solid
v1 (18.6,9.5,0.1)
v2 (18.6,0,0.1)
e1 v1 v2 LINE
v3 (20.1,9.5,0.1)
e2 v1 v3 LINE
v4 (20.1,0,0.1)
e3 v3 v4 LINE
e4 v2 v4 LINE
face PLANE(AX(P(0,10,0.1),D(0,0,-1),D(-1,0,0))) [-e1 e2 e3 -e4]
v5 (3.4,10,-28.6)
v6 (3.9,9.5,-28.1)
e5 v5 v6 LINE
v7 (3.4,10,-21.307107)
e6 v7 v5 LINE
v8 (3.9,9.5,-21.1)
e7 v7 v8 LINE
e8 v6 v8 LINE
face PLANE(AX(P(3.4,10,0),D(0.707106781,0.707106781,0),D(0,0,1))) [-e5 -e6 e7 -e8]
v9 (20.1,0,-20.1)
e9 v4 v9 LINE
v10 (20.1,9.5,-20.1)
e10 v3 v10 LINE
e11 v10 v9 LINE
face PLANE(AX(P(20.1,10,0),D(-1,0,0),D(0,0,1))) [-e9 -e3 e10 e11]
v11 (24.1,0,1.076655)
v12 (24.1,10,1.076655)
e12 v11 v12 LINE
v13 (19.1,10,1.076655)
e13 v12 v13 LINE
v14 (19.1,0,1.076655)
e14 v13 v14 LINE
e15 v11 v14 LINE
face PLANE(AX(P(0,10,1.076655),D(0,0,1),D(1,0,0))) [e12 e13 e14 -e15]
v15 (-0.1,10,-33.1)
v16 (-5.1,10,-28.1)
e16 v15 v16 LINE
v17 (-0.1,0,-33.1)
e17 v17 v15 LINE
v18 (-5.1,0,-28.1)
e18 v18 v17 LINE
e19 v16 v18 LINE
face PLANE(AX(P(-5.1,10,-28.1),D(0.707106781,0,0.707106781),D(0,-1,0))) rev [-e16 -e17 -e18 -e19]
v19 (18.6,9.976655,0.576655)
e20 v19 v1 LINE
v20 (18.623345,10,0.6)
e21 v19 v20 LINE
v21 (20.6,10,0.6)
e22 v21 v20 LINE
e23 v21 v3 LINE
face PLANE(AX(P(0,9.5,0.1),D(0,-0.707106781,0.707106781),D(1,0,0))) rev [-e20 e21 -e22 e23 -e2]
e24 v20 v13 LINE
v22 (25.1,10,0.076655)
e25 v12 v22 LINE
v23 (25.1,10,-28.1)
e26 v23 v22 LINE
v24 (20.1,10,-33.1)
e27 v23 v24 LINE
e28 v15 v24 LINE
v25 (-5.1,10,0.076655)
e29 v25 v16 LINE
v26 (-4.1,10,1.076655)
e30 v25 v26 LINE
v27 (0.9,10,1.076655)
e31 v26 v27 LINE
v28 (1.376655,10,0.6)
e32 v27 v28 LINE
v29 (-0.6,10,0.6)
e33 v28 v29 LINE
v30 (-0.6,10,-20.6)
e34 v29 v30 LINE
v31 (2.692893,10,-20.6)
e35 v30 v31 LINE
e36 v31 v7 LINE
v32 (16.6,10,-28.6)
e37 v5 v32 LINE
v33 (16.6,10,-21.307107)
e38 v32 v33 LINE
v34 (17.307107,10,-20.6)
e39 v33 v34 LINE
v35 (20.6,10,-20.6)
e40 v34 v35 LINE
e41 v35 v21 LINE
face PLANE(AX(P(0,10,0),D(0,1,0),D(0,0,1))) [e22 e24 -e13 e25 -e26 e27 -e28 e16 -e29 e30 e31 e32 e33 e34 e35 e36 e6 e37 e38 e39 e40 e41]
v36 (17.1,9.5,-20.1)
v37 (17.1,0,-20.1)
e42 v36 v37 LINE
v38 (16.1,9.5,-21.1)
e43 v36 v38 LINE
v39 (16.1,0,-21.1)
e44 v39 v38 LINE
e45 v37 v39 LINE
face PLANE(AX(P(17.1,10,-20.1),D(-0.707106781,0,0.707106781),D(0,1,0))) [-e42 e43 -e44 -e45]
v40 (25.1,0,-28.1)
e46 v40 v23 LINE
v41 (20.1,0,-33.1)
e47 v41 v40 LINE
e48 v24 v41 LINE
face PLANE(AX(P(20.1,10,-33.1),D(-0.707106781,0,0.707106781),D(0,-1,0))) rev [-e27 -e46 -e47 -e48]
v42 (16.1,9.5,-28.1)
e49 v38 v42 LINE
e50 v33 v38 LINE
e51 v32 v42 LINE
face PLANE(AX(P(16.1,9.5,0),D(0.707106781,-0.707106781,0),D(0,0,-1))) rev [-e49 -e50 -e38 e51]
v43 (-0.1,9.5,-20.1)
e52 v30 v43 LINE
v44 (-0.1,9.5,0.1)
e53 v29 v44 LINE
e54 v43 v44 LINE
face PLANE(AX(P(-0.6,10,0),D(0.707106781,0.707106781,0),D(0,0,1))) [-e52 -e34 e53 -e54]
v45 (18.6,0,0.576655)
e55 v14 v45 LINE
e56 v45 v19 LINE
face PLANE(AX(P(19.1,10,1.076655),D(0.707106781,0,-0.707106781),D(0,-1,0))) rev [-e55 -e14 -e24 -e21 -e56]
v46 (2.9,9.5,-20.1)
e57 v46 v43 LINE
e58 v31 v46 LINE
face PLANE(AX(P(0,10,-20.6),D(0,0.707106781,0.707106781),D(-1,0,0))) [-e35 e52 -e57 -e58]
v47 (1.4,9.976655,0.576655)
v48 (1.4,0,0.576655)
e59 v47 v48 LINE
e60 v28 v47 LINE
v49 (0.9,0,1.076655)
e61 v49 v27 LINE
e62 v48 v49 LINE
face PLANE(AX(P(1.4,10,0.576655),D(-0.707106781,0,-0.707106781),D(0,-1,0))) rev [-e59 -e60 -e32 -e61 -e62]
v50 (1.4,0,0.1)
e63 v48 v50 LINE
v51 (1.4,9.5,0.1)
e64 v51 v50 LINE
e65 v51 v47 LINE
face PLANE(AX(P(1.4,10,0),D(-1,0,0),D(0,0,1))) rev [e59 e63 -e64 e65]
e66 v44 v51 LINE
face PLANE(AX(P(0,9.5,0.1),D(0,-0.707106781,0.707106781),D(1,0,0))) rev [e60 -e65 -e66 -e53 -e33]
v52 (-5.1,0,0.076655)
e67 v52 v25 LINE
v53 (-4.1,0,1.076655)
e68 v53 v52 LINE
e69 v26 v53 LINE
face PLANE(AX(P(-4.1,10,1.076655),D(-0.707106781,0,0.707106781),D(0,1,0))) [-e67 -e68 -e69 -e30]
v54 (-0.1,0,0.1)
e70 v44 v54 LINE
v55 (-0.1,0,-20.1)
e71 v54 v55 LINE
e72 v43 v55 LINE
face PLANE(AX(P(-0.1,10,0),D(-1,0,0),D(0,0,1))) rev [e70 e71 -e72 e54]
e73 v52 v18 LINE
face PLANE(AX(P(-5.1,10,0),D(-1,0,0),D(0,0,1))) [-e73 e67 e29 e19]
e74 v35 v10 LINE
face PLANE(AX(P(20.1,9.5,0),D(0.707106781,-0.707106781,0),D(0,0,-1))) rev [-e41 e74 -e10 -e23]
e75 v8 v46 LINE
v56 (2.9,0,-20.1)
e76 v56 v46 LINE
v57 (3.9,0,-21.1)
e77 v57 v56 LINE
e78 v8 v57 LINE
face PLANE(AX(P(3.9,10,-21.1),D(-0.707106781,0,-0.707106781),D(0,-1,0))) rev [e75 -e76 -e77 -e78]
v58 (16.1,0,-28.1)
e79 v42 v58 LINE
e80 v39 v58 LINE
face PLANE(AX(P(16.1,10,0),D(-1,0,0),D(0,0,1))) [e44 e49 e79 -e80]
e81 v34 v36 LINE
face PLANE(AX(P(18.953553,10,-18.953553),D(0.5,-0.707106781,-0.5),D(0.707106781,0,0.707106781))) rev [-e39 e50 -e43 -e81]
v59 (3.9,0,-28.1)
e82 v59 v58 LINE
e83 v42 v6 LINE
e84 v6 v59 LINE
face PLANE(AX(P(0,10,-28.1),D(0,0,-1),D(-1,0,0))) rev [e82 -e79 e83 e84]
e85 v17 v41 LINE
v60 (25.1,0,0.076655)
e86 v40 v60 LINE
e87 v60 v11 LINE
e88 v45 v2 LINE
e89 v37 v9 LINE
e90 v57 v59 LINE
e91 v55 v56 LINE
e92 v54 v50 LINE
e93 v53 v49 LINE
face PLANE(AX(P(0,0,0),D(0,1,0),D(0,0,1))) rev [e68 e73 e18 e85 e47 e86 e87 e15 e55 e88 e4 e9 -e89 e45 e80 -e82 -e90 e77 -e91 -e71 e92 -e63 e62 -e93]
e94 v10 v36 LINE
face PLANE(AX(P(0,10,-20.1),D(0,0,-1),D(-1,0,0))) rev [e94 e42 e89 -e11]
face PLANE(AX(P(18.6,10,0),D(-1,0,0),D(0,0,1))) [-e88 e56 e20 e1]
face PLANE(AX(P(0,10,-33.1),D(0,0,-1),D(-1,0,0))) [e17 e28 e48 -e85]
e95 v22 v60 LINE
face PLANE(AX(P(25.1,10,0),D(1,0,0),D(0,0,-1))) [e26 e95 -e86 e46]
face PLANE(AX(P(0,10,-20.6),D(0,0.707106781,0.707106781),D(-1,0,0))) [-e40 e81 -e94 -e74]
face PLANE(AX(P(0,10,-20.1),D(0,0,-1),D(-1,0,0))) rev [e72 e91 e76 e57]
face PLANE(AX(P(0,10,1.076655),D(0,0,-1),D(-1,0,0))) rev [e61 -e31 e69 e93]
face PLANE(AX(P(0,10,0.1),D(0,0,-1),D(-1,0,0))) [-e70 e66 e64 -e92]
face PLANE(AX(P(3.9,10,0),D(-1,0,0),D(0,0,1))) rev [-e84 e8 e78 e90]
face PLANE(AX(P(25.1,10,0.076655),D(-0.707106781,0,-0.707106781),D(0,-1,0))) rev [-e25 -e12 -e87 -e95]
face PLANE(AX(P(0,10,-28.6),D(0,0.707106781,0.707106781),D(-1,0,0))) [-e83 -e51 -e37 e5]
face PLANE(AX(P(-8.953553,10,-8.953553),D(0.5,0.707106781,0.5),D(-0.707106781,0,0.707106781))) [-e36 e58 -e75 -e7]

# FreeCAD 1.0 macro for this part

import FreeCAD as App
import Part
import Sketcher
from FreeCAD import Vector


def edges_at(feature, points):
    """Names of the edges that pass closest to the given points."""
    edges = feature.Shape.Edges
    near = lambda p: min(range(len(edges)), key=lambda i: edges[i].distToShape(Part.Vertex(*p))[0])
    return sorted({f"Edge{near(p) + 1}" for p in points})


def add_polygon(sketch, points):
    """Adds a closed chain of lines whose ends are joined by coincident constraints."""
    first, n = sketch.GeometryCount, len(points)
    for a, b in zip(points, points[1:] + points[:1]):
        sketch.addGeometry(Part.LineSegment(App.Vector(*a, 0), App.Vector(*b, 0)), False)
    for i in range(n):
        sketch.addConstraint(Sketcher.Constraint("Coincident", first + i, 2, first + (i + 1) % n, 1))

doc = App.newDocument("Part")
body = doc.addObject("PartDesign::Body", "Body")

# Sketch on XZ plane
sketch1 = body.newObject("Sketcher::SketchObject", "Sketch")
sketch1.AttachmentSupport = (doc.getObject("XZ_Plane"), [""])
sketch1.MapMode = "FlatFace"
add_polygon(sketch1, [(-0.1, -20.1), (3.9, -20.1), (3.9, -28.1), (16.1, -28.1), (16.1, -20.1), (20.1, -20.1), (20.1, 0.1), (18.6, 0.1), (18.6, 1.1), (25.1, 1.1), (25.1, -33.1), (-5.1, -33.1), (-5.1, 1.1), (1.4, 1.1), (1.4, 0.1), (-0.1, 0.1)])  # lines 0-15
sketch1.addConstraint([
    Sketcher.Constraint("Horizontal", 0),
    Sketcher.Constraint("Vertical", 1),
    Sketcher.Constraint("Horizontal", 2),
    Sketcher.Constraint("Vertical", 3),
    Sketcher.Constraint("Horizontal", 4),
    Sketcher.Constraint("Vertical", 5),
    Sketcher.Constraint("Horizontal", 6),
    Sketcher.Constraint("Vertical", 7),
    Sketcher.Constraint("Horizontal", 8),
    Sketcher.Constraint("Vertical", 9),
    Sketcher.Constraint("Horizontal", 10),
    Sketcher.Constraint("Vertical", 11),
    Sketcher.Constraint("Horizontal", 12),
    Sketcher.Constraint("Vertical", 13),
    Sketcher.Constraint("Horizontal", 14),
    Sketcher.Constraint("Vertical", 15),
    Sketcher.Constraint("Horizontal", 0, 2, 3, 2),
    Sketcher.Constraint("Horizontal", 8, 2, 11, 2),
    Sketcher.Constraint("Horizontal", 6, 2, 13, 2),
    Sketcher.Constraint("Equal", 0, 4),
    Sketcher.Constraint("Equal", 8, 12),
    Sketcher.Constraint("Equal", 6, 14),
    Sketcher.Constraint("DistanceX", 0, 1, 0, 2, 4.0),
    Sketcher.Constraint("DistanceY", 1, 2, 1, 1, 8.0),
    Sketcher.Constraint("DistanceX", 2, 1, 2, 2, 12.2),
    Sketcher.Constraint("DistanceX", 6, 2, 6, 1, 1.5),
    Sketcher.Constraint("DistanceX", 8, 1, 8, 2, 6.5),
    Sketcher.Constraint("DistanceY", 5, 1, 5, 2, 20.2),
    Sketcher.Constraint("DistanceY", 9, 2, 2, 2, 5.0),
    Sketcher.Constraint("DistanceX", -1, 1, 0, 2, 3.9),
    Sketcher.Constraint("DistanceY", 0, 2, -1, 1, 20.1),
    Sketcher.Constraint("DistanceY", 7, 1, 7, 2, 0.976655),
])
pad1 = body.newObject("PartDesign::Pad", "Pad")
pad1.Profile = sketch1
pad1.Length = 10
pad1.Reversed = True
doc.recompute()

chamfer = body.newObject("PartDesign::Chamfer", "Chamfer")
chamfer.Base = (pad1, edges_at(pad1, [(-5.1, 5, -33.1), (25.1, 5, -33.1)]))
chamfer.Size = 5
doc.recompute()

chamfer2 = body.newObject("PartDesign::Chamfer", "Chamfer001")
chamfer2.Base = (chamfer, edges_at(chamfer, [
    (16.1, 5, -20.1),
    (3.9, 5, -20.1),
    (-5.1, 5, 1.077),
    (25.1, 5, 1.077),
]))
chamfer2.Size = 1
doc.recompute()

chamfer3 = body.newObject("PartDesign::Chamfer", "Chamfer002")
chamfer3.Base = (chamfer2, edges_at(chamfer2, [
    (0.65, 10, 0.1),
    (-0.1, 10, -10),
    (1.4, 10, -20.1),
    (10, 10, -28.1),
    (3.9, 10, -24.6),
    (16.1, 10, -24.6),
    (18.6, 10, -20.1),
    (3.4, 10, -20.6),
    (16.6, 10, -20.6),
    (20.1, 10, -10),
    (19.35, 10, 0.1),
]))
chamfer3.Size = 0.5
doc.recompute()

chamfer4 = body.newObject("PartDesign::Chamfer", "Chamfer003")
chamfer4.Base = (chamfer3, edges_at(chamfer3, [(18.6, 5, 1.077), (1.4, 5, 1.077)]))
chamfer4.Size = 0.5

doc.recompute()
